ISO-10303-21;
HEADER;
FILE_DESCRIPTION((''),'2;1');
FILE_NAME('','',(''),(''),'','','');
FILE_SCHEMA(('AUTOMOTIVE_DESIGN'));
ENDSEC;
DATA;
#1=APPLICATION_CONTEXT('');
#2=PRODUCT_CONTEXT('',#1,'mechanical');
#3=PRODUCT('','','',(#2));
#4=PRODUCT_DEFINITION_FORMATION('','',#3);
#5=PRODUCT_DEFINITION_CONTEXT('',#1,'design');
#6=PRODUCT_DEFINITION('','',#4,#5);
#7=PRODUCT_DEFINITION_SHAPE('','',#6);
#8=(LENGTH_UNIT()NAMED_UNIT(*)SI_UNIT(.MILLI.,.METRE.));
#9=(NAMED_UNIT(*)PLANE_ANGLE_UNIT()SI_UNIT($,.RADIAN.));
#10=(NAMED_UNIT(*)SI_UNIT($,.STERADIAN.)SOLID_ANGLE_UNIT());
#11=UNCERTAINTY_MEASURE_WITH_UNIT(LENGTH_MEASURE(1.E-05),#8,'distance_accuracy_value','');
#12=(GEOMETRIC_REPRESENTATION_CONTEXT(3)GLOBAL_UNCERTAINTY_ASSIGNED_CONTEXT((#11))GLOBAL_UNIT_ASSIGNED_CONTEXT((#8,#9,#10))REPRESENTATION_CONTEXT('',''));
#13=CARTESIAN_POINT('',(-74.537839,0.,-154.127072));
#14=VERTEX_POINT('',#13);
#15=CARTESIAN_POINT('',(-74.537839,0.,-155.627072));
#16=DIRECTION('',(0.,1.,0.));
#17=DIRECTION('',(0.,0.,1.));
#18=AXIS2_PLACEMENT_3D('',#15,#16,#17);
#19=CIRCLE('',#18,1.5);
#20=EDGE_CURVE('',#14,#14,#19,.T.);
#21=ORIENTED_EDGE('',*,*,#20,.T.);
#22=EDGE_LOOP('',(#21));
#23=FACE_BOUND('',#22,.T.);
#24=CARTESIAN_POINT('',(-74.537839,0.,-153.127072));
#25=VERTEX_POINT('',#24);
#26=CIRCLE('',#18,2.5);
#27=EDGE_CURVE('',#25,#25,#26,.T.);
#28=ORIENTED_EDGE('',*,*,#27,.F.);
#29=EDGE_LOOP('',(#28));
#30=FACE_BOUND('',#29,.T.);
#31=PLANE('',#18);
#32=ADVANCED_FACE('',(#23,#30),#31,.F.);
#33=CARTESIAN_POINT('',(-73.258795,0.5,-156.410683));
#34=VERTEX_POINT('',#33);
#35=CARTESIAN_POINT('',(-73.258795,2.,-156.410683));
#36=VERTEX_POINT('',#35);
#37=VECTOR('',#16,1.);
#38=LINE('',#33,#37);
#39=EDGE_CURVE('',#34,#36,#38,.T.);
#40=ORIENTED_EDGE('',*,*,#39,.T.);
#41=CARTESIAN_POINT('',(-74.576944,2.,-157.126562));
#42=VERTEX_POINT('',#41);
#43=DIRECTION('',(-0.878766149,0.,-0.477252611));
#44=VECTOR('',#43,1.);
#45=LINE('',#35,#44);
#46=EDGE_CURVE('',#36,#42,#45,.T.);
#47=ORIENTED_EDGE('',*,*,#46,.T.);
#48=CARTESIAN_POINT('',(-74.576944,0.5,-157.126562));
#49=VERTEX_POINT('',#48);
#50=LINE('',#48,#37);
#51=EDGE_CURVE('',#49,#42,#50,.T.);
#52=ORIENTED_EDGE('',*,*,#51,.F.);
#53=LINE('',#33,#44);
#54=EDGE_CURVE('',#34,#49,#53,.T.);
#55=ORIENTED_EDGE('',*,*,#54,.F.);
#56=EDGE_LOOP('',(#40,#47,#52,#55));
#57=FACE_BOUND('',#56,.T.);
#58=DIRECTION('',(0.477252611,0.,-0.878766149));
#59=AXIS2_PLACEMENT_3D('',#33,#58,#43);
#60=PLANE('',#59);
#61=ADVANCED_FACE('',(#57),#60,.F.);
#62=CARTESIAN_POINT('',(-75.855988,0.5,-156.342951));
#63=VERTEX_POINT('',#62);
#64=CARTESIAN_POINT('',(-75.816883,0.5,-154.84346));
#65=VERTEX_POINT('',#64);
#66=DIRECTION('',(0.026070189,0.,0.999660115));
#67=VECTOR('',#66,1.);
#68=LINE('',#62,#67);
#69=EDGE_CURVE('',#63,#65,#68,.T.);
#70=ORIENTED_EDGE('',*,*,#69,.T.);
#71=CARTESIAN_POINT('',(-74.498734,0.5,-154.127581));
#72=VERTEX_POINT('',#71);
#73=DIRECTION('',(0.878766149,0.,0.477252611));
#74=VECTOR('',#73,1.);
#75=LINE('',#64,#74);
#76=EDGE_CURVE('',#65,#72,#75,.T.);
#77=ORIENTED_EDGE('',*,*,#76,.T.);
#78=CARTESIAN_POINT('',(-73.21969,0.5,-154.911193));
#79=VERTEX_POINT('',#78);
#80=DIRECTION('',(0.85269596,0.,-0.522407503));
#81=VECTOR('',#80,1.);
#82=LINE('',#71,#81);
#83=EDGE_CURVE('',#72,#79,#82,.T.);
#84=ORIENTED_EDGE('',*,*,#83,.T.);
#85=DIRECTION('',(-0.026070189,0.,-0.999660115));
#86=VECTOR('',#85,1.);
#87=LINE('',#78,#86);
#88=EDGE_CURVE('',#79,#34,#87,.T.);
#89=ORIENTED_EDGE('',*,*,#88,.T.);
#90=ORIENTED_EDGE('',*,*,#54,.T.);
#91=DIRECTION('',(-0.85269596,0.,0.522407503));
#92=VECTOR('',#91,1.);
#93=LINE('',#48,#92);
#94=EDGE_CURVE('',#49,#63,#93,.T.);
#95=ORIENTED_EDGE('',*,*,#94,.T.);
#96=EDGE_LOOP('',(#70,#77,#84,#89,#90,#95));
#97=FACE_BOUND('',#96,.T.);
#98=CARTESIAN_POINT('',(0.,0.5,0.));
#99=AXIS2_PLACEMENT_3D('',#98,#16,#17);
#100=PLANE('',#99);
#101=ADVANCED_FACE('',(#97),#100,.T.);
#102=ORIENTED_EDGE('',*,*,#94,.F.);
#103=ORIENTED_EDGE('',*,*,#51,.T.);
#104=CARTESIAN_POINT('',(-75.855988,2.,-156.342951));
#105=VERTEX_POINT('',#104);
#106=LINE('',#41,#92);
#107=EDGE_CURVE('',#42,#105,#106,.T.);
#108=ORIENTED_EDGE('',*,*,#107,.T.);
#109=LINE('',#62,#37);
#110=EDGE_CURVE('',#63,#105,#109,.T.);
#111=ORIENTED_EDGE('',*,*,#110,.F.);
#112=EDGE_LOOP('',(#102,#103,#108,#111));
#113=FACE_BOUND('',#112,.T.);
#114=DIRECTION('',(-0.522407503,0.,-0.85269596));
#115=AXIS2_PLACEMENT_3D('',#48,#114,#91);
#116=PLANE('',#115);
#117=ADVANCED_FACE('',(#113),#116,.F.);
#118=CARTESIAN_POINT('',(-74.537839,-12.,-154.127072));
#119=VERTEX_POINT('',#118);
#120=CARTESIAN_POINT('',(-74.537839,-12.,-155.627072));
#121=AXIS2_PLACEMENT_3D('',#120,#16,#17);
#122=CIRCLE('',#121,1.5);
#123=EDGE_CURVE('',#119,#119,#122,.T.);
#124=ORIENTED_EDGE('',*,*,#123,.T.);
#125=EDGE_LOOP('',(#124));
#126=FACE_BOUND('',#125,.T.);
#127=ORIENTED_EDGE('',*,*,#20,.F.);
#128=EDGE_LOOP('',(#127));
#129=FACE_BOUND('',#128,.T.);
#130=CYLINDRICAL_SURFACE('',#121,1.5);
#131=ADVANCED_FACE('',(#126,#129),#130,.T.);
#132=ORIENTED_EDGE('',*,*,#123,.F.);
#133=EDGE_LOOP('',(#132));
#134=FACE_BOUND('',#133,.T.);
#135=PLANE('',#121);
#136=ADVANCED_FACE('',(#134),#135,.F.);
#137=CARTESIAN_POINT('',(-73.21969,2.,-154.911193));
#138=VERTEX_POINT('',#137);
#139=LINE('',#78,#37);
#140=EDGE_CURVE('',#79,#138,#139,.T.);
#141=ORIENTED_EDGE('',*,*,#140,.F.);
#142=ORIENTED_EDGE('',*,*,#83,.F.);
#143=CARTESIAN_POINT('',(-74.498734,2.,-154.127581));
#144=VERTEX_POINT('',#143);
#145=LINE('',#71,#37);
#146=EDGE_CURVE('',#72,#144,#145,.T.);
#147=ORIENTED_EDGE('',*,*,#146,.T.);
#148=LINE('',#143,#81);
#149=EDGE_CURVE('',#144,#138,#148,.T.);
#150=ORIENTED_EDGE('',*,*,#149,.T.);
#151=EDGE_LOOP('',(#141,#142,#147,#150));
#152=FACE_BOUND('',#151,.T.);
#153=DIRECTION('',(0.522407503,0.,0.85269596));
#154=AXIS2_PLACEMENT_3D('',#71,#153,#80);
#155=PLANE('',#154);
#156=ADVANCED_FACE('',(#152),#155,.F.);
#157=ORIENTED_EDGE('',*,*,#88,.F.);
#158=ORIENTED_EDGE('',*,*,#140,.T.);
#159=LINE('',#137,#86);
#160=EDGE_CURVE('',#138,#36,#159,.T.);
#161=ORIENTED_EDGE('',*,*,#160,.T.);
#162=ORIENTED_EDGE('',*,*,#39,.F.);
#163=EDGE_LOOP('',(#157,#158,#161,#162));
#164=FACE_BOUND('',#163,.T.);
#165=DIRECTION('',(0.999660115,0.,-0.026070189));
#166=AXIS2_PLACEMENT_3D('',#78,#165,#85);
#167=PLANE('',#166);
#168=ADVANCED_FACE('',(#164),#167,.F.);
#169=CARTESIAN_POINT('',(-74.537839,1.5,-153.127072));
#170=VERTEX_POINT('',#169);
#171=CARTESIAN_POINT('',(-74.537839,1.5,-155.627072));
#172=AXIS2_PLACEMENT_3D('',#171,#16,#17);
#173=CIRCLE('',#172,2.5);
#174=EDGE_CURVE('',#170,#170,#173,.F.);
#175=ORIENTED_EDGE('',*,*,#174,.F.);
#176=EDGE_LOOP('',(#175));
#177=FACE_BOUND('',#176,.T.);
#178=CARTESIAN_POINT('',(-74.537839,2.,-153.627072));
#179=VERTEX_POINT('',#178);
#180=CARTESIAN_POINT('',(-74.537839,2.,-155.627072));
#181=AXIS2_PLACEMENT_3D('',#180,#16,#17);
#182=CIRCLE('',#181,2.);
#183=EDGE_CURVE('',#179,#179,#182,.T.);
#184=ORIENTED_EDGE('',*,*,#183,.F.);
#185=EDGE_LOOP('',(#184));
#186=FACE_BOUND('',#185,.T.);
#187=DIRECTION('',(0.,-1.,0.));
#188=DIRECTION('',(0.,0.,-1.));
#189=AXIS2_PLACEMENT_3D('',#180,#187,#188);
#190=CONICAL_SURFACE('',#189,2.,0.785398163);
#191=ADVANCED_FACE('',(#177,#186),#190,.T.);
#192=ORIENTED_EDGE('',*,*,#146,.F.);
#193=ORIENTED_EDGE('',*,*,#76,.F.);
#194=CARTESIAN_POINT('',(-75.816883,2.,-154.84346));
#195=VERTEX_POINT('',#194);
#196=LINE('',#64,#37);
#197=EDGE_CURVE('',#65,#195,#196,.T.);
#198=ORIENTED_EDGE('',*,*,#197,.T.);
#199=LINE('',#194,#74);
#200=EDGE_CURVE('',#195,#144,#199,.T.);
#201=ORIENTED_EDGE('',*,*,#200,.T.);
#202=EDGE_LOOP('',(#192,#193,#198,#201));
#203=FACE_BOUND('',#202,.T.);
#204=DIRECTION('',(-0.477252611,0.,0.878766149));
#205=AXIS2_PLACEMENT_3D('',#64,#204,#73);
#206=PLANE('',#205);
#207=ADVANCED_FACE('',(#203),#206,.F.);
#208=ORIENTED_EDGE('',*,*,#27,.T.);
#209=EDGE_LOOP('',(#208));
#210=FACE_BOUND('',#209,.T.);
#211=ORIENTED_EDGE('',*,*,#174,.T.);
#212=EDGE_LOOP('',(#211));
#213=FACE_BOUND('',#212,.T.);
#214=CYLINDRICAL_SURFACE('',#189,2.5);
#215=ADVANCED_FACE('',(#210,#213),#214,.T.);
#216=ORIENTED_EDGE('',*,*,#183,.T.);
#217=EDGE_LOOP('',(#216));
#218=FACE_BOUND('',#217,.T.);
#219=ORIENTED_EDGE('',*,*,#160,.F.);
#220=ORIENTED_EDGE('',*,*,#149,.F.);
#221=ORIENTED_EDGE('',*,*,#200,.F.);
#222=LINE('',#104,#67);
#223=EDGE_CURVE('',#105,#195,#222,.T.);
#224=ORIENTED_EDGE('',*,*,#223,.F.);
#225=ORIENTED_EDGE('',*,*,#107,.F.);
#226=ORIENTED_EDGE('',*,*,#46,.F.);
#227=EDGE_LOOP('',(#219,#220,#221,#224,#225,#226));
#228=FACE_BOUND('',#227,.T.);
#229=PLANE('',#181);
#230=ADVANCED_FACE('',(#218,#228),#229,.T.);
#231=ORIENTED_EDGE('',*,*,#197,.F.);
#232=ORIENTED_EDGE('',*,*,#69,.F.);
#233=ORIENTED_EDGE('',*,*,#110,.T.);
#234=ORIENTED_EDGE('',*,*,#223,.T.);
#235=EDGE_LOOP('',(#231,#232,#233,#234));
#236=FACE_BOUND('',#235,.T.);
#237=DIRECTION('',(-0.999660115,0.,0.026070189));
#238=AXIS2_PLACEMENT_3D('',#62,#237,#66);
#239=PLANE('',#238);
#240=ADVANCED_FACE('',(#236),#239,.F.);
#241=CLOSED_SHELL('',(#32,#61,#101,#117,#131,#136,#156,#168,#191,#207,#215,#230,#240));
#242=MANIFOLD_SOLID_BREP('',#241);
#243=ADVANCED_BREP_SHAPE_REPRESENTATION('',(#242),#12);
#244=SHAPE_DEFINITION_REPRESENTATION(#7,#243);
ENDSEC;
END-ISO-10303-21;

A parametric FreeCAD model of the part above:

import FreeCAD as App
import Part
import Sketcher

V = App.Vector
Q = App.Units.Quantity


def edges_at(feature, points):
    """Names of the edges that pass closest to the given points."""
    edges = feature.Shape.Edges
    near = lambda p: min(range(len(edges)), key=lambda i: edges[i].distToShape(Part.Vertex(*p))[0])
    return sorted({f"Edge{near(p) + 1}" for p in points})


def add_polygon(sketch, points):
    """Adds a closed chain of lines whose ends are joined by coincident constraints."""
    first, n = sketch.GeometryCount, len(points)
    for a, b in zip(points, points[1:] + points[:1]):
        sketch.addGeometry(Part.LineSegment(App.Vector(*a, 0), App.Vector(*b, 0)), False)
    for i in range(n):
        sketch.addConstraint(Sketcher.Constraint("Coincident", first + i, 2, first + (i + 1) % n, 1))

doc = App.newDocument("Part")
body = doc.addObject("PartDesign::Body", "Body")

sketch1 = doc.addObject("Sketcher::SketchObject", "Sketch")
body.addObject(sketch1)
sketch1.AttachmentSupport = (doc.XZ_Plane, [""])
sketch1.MapMode = "FlatFace"
sketch1.addGeometry(Part.Circle(V(-74.537839, -155.627072, 0), V(0, 0, 1), 1.5), False)
sketch1.addConstraint(Sketcher.Constraint("Diameter", 0, Q("3 mm")))
sketch1.addConstraint(Sketcher.Constraint("DistanceX", 0, 3, -1, 1, Q("74.537839 mm")))
sketch1.addConstraint(Sketcher.Constraint("DistanceY", 0, 3, -1, 1, Q("155.627072 mm")))
pad1 = doc.addObject("PartDesign::Pad", "Pad")
body.addObject(pad1)
pad1.Profile = sketch1
pad1.Length = 12

sketch2 = doc.addObject("Sketcher::SketchObject", "Sketch001")
body.addObject(sketch2)
sketch2.AttachmentSupport = (doc.XZ_Plane, [""])
sketch2.MapMode = "FlatFace"
sketch2.addGeometry(Part.Circle(V(-74.537839, -155.627072, 0), V(0, 0, 1), 2.5), False)
sketch2.addConstraint(Sketcher.Constraint("Diameter", 0, Q("5 mm")))
sketch2.addConstraint(Sketcher.Constraint("DistanceX", 0, 3, -1, 1, Q("74.537839 mm")))
sketch2.addConstraint(Sketcher.Constraint("DistanceY", 0, 3, -1, 1, Q("155.627072 mm")))
pad2 = doc.addObject("PartDesign::Pad", "Pad001")
body.addObject(pad2)
pad2.Profile = sketch2
pad2.Length = 2
pad2.Reversed = True
doc.recompute()

chamfer = doc.addObject("PartDesign::Chamfer", "Chamfer")
body.addObject(chamfer)
chamfer.Base = (pad2, edges_at(pad2, [(-77.038, 2, -155.627)]))
chamfer.Size = 0.5

sketch3 = doc.addObject("Sketcher::SketchObject", "Sketch002")
body.addObject(sketch3)
sketch3.AttachmentSupport = (doc.XZ_Plane, [""])
sketch3.MapMode = "FlatFace"
sketch3.AttachmentOffset = App.Placement(V(0, 0, -2), App.Rotation())
add_polygon(sketch3, [(-73.21969, -154.911193), (-73.258795, -156.410683), (-74.576944, -157.126562), (-75.855988, -156.342951), (-75.816883, -154.84346), (-74.498734, -154.127581)])
sketch3.addConstraint(Sketcher.Constraint("Parallel", 0, 3))
sketch3.addConstraint(Sketcher.Constraint("Parallel", 1, 4))
sketch3.addConstraint(Sketcher.Constraint("Parallel", 2, 5))
sketch3.addConstraint(Sketcher.Constraint("Equal", 0, 1))
sketch3.addConstraint(Sketcher.Constraint("Equal", 1, 2))
sketch3.addConstraint(Sketcher.Constraint("Equal", 2, 3))
sketch3.addConstraint(Sketcher.Constraint("Distance", 0, Q("1.5 mm")))
sketch3.addConstraint(Sketcher.Constraint("DistanceY", 1, 2, 3, 2, Q("2.283101 mm")))
sketch3.addConstraint(Sketcher.Constraint("DistanceX", 2, 2, 5, 2, Q("2.636298 mm")))
sketch3.addConstraint(Sketcher.Constraint("DistanceY", 1, 2, -1, 1, Q("157.126562 mm")))
sketch3.addConstraint(Sketcher.Constraint("DistanceX", 2, 2, -1, 1, Q("75.855988 mm")))
sketch3.addConstraint(Sketcher.Constraint("DistanceY", 2, 2, -1, 1, Q("156.342951 mm")))
pocket1 = doc.addObject("PartDesign::Pocket", "Pocket")
body.addObject(pocket1)
pocket1.Profile = sketch3
pocket1.Length = 1.5
pocket1.Reversed = True

doc.recompute()
